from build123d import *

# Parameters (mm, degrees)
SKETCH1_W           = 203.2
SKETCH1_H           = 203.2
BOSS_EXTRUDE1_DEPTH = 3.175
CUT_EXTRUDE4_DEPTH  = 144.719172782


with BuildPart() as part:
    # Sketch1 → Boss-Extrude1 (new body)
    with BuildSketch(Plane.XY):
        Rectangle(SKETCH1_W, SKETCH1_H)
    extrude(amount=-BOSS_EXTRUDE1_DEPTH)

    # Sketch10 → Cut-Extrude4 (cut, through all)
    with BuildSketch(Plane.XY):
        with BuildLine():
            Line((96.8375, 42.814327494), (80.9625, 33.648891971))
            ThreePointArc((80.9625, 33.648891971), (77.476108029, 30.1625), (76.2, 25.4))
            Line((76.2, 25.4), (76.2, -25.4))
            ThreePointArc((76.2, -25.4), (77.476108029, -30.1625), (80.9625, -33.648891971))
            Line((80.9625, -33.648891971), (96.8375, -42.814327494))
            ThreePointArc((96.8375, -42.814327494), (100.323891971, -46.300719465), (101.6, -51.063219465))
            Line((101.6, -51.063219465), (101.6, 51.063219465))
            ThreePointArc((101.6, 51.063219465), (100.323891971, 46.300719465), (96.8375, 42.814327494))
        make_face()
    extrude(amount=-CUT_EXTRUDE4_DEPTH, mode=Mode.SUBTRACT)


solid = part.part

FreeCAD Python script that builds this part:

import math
import FreeCAD as App
import Part
import Sketcher

V = App.Vector
Q = App.Units.Quantity


def add_polygon(sketch, points):
    """Adds a closed chain of lines whose ends are joined by coincident constraints."""
    first, n = sketch.GeometryCount, len(points)
    for a, b in zip(points, points[1:] + points[:1]):
        sketch.addGeometry(Part.LineSegment(App.Vector(*a, 0), App.Vector(*b, 0)), False)
    for i in range(n):
        sketch.addConstraint(Sketcher.Constraint("Coincident", first + i, 2, first + (i + 1) % n, 1))

doc = App.newDocument("Part")
params = doc.addObject("Spreadsheet::Sheet", "Params")
for row, (alias, value) in enumerate([
    ("sketch1_width", "8 in"),
    ("pad1_length", "0.125 in"),
    ("sketch2_height", "2 in"),
    ("sketch2_radius", "0.375 in"),
], start=1):
    params.set(f"A{row}", alias)
    params.set(f"B{row}", "=" + value)
    params.setAlias(f"B{row}", alias)

body = doc.addObject("PartDesign::Body", "Body")

# Sketch on XY plane
sketch1 = doc.addObject("Sketcher::SketchObject", "Sketch")
body.addObject(sketch1)
sketch1.AttachmentSupport = (doc.XY_Plane, [""])
sketch1.MapMode = "FlatFace"
add_polygon(sketch1, [(-101.6, 101.6), (-101.6, -101.6), (101.6, -101.6), (101.6, 101.6)])  # lines 0-3
sketch1.addConstraint(Sketcher.Constraint("Vertical", 0))
sketch1.addConstraint(Sketcher.Constraint("Horizontal", 1))
sketch1.addConstraint(Sketcher.Constraint("Vertical", 2))
sketch1.addConstraint(Sketcher.Constraint("Horizontal", 3))
sketch1.addConstraint(Sketcher.Constraint("Symmetric", 0, 2, 2, 2, -1, 1))
sketch1.addConstraint(Sketcher.Constraint("Equal", 3, 0))
sketch1.addConstraint(Sketcher.Constraint("DistanceX", 1, 1, 1, 2, Q("8 in")))
sketch1.setExpression("Constraints[10]", "Params.sketch1_width")
pad1 = doc.addObject("PartDesign::Pad", "Pad")
body.addObject(pad1)
pad1.Profile = sketch1
pad1.setExpression("Length", "Params.pad1_length")
pad1.Reversed = True

# Sketch on XY plane
sketch2 = doc.addObject("Sketcher::SketchObject", "Sketch001")
body.addObject(sketch2)
sketch2.AttachmentSupport = (doc.XY_Plane, [""])
sketch2.MapMode = "FlatFace"
sketch2.addGeometry(Part.LineSegment(V(96.8375, 42.814327, 0), V(80.9625, 33.648892, 0)), False)
sketch2.addGeometry(Part.ArcOfCircle(Part.Circle(V(85.725, 25.4, 0), V(0, 0, 1), 9.525), math.radians(120), math.radians(180)), False)
sketch2.addGeometry(Part.LineSegment(V(76.2, 25.4, 0), V(76.2, -25.4, 0)), False)
sketch2.addGeometry(Part.ArcOfCircle(Part.Circle(V(85.725, -25.4, 0), V(0, 0, 1), 9.525), math.radians(180), math.radians(240)), False)
sketch2.addGeometry(Part.LineSegment(V(80.9625, -33.648892, 0), V(96.8375, -42.814327, 0)), False)
sketch2.addGeometry(Part.ArcOfCircle(Part.Circle(V(92.075, -51.063219, 0), V(0, 0, 1), 9.525), math.radians(0), math.radians(60)), False)
sketch2.addGeometry(Part.LineSegment(V(101.6, -51.063219, 0), V(101.6, 51.063219, 0)), False)
sketch2.addGeometry(Part.ArcOfCircle(Part.Circle(V(92.075, 51.063219, 0), V(0, 0, 1), 9.525), math.radians(-60), math.radians(0)), False)
sketch2.addConstraint(Sketcher.Constraint("Tangent", 0, 2, 1, 1))
sketch2.addConstraint(Sketcher.Constraint("Tangent", 1, 2, 2, 1))
sketch2.addConstraint(Sketcher.Constraint("Tangent", 2, 2, 3, 1))
sketch2.addConstraint(Sketcher.Constraint("Tangent", 3, 2, 4, 1))
sketch2.addConstraint(Sketcher.Constraint("Tangent", 4, 2, 5, 2))
sketch2.addConstraint(Sketcher.Constraint("Tangent", 5, 1, 6, 1))
sketch2.addConstraint(Sketcher.Constraint("Tangent", 6, 2, 7, 2))
sketch2.addConstraint(Sketcher.Constraint("Tangent", 7, 1, 0, 1))
sketch2.addConstraint(Sketcher.Constraint("Vertical", 2))
sketch2.addConstraint(Sketcher.Constraint("Vertical", 6))
sketch2.addConstraint(Sketcher.Constraint("Equal", 1, 3))
sketch2.addConstraint(Sketcher.Constraint("Equal", 3, 5))
sketch2.addConstraint(Sketcher.Constraint("Equal", 5, 7))
sketch2.addConstraint(Sketcher.Constraint("Symmetric", 0, 2, 3, 2, -1))
sketch2.addConstraint(Sketcher.Constraint("DistanceY", 2, 2, 2, 1, Q("2 in")))
sketch2.addConstraint(Sketcher.Constraint("DistanceX", -1, 1, 1, 2, Q("3 in")))
sketch2.addConstraint(Sketcher.Constraint("DistanceX", -1, 1, 5, 1, Q("4 in")))
sketch2.addConstraint(Sketcher.Constraint("Angle", 0, Q("-150 deg")))
sketch2.addConstraint(Sketcher.Constraint("Radius", 1, Q("0.375 in")))
sketch2.setExpression("Constraints[14]", "Params.sketch2_height")
sketch2.setExpression("Constraints[18]", "Params.sketch2_radius")
pocket1 = doc.addObject("PartDesign::Pocket", "Pocket")
body.addObject(pocket1)
pocket1.Profile = sketch2
pocket1.Type = "ThroughAll"

doc.recompute()
